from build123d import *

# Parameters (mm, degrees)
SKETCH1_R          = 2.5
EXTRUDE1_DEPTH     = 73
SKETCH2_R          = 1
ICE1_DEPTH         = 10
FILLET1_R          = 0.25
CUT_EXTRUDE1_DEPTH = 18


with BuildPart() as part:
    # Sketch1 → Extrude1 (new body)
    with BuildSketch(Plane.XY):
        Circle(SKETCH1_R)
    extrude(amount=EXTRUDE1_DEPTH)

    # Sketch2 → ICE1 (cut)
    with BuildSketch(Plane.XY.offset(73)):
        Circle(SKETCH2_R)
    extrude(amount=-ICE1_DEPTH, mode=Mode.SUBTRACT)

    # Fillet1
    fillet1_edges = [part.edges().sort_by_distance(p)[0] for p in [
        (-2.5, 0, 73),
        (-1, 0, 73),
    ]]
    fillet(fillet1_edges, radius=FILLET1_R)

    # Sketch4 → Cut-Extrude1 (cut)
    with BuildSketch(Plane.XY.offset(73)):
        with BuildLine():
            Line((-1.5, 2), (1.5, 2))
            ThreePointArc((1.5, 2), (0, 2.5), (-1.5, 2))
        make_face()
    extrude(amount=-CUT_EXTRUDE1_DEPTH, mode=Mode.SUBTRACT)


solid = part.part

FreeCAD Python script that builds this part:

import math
import FreeCAD as App
import Part
import Sketcher
from FreeCAD import Vector


def edges_at(feature, points):
    """Names of the edges that pass closest to the given points."""
    edges = feature.Shape.Edges
    near = lambda p: min(range(len(edges)), key=lambda i: edges[i].distToShape(Part.Vertex(*p))[0])
    return sorted({f"Edge{near(p) + 1}" for p in points})

doc = App.newDocument("Part")
body = doc.addObject("PartDesign::Body", "Body")

sketch1 = body.newObject("Sketcher::SketchObject", "Sketch")
sketch1.AttachmentSupport = (doc.getObject("XY_Plane"), [""])
sketch1.MapMode = "FlatFace"
sketch1.addGeometry(Part.Circle(Vector(0, 0, 0), Vector(0, 0, 1), 2.5), False)
sketch1.addConstraint(Sketcher.Constraint("Coincident", 0, 3, -1, 1))
sketch1.addConstraint(Sketcher.Constraint("Diameter", 0, 5.0))
pad1 = body.newObject("PartDesign::Pad", "Pad")
pad1.Profile = sketch1
pad1.Length = 73

sketch2 = body.newObject("Sketcher::SketchObject", "Sketch001")
sketch2.AttachmentSupport = (doc.getObject("XY_Plane"), [""])
sketch2.MapMode = "FlatFace"
sketch2.AttachmentOffset = App.Placement(Vector(0, 0, 73), App.Rotation())
sketch2.addGeometry(Part.Circle(Vector(0, 0, 0), Vector(0, 0, 1), 1), False)
sketch2.addConstraint(Sketcher.Constraint("Coincident", 0, 3, -1, 1))
sketch2.addConstraint(Sketcher.Constraint("Diameter", 0, 2.0))
pocket1 = body.newObject("PartDesign::Pocket", "Pocket")
pocket1.Profile = sketch2
pocket1.Length = 10
doc.recompute()

fillet = body.newObject("PartDesign::Fillet", "Fillet")
fillet.Base = (pocket1, edges_at(pocket1, [(-2.5, 0, 73), (-1, 0, 73)]))
fillet.Radius = 0.25

sketch3 = body.newObject("Sketcher::SketchObject", "Sketch002")
sketch3.AttachmentSupport = (doc.getObject("XY_Plane"), [""])
sketch3.MapMode = "FlatFace"
sketch3.AttachmentOffset = App.Placement(Vector(0, 0, 73), App.Rotation())
sketch3.addGeometry(Part.LineSegment(Vector(-1.5, 2, 0), Vector(1.5, 2, 0)), False)
sketch3.addGeometry(Part.ArcOfCircle(Part.Circle(Vector(0, 0, 0), Vector(0, 0, 1), 2.5), math.radians(53.130102), math.radians(126.869898)), False)
sketch3.addConstraint(Sketcher.Constraint("Coincident", 0, 1, 1, 2))
sketch3.addConstraint(Sketcher.Constraint("Coincident", 1, 1, 0, 2))
sketch3.addConstraint(Sketcher.Constraint("Horizontal", 0))
sketch3.addConstraint(Sketcher.Constraint("Coincident", 1, 3, -1, 1))
sketch3.addConstraint(Sketcher.Constraint("Radius", 1, 2.5))
sketch3.addConstraint(Sketcher.Constraint("DistanceX", 0, 1, 0, 2, 3.0))
pocket2 = body.newObject("PartDesign::Pocket", "Pocket001")
pocket2.Profile = sketch3
pocket2.Length = 18

doc.recompute()
